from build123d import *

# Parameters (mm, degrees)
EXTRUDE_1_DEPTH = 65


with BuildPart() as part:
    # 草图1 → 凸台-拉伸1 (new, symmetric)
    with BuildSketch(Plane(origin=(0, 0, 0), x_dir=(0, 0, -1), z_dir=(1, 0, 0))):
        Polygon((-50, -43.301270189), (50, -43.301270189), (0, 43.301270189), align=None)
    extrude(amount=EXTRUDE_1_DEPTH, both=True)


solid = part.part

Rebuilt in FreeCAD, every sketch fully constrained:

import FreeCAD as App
import Part
import Sketcher

V = App.Vector
Q = App.Units.Quantity

doc = App.newDocument("Part")
body = doc.addObject("PartDesign::Body", "Body")

sketch1 = body.newObject("Sketcher::SketchObject", "Sketch")
sketch1.AttachmentSupport = (doc.getObject("YZ_Plane"), [""])
sketch1.MapMode = "FlatFace"
sketch1.addGeometry(Part.LineSegment(V(-43, 50, 0), V(-43, -50, 0)), False)
sketch1.addGeometry(Part.LineSegment(V(-43, -50, 0), V(43, 0, 0)), False)
sketch1.addGeometry(Part.LineSegment(V(43, 0, 0), V(-43, 50, 0)), False)
sketch1.addConstraint(Sketcher.Constraint("Coincident", 0, 2, 1, 1))
sketch1.addConstraint(Sketcher.Constraint("Coincident", 1, 2, 2, 1))
sketch1.addConstraint(Sketcher.Constraint("Coincident", 2, 2, 0, 1))
sketch1.addConstraint(Sketcher.Constraint("Vertical", 0))
sketch1.addConstraint(Sketcher.Constraint("PointOnObject", 1, 2, -1))
sketch1.addConstraint(Sketcher.Constraint("Equal", 1, 2))
sketch1.addConstraint(Sketcher.Constraint("DistanceY", 0, 2, 0, 1, Q("100 mm")))
sketch1.addConstraint(Sketcher.Constraint("Angle", 1, Q("30 deg")))
sketch1.addConstraint(Sketcher.Constraint("DistanceX", 0, 2, -1, 1, Q("43.30127 mm")))
pad1 = body.newObject("PartDesign::Pad", "Pad")
pad1.Profile = sketch1
pad1.Length = 130
pad1.Midplane = True

doc.recompute()
